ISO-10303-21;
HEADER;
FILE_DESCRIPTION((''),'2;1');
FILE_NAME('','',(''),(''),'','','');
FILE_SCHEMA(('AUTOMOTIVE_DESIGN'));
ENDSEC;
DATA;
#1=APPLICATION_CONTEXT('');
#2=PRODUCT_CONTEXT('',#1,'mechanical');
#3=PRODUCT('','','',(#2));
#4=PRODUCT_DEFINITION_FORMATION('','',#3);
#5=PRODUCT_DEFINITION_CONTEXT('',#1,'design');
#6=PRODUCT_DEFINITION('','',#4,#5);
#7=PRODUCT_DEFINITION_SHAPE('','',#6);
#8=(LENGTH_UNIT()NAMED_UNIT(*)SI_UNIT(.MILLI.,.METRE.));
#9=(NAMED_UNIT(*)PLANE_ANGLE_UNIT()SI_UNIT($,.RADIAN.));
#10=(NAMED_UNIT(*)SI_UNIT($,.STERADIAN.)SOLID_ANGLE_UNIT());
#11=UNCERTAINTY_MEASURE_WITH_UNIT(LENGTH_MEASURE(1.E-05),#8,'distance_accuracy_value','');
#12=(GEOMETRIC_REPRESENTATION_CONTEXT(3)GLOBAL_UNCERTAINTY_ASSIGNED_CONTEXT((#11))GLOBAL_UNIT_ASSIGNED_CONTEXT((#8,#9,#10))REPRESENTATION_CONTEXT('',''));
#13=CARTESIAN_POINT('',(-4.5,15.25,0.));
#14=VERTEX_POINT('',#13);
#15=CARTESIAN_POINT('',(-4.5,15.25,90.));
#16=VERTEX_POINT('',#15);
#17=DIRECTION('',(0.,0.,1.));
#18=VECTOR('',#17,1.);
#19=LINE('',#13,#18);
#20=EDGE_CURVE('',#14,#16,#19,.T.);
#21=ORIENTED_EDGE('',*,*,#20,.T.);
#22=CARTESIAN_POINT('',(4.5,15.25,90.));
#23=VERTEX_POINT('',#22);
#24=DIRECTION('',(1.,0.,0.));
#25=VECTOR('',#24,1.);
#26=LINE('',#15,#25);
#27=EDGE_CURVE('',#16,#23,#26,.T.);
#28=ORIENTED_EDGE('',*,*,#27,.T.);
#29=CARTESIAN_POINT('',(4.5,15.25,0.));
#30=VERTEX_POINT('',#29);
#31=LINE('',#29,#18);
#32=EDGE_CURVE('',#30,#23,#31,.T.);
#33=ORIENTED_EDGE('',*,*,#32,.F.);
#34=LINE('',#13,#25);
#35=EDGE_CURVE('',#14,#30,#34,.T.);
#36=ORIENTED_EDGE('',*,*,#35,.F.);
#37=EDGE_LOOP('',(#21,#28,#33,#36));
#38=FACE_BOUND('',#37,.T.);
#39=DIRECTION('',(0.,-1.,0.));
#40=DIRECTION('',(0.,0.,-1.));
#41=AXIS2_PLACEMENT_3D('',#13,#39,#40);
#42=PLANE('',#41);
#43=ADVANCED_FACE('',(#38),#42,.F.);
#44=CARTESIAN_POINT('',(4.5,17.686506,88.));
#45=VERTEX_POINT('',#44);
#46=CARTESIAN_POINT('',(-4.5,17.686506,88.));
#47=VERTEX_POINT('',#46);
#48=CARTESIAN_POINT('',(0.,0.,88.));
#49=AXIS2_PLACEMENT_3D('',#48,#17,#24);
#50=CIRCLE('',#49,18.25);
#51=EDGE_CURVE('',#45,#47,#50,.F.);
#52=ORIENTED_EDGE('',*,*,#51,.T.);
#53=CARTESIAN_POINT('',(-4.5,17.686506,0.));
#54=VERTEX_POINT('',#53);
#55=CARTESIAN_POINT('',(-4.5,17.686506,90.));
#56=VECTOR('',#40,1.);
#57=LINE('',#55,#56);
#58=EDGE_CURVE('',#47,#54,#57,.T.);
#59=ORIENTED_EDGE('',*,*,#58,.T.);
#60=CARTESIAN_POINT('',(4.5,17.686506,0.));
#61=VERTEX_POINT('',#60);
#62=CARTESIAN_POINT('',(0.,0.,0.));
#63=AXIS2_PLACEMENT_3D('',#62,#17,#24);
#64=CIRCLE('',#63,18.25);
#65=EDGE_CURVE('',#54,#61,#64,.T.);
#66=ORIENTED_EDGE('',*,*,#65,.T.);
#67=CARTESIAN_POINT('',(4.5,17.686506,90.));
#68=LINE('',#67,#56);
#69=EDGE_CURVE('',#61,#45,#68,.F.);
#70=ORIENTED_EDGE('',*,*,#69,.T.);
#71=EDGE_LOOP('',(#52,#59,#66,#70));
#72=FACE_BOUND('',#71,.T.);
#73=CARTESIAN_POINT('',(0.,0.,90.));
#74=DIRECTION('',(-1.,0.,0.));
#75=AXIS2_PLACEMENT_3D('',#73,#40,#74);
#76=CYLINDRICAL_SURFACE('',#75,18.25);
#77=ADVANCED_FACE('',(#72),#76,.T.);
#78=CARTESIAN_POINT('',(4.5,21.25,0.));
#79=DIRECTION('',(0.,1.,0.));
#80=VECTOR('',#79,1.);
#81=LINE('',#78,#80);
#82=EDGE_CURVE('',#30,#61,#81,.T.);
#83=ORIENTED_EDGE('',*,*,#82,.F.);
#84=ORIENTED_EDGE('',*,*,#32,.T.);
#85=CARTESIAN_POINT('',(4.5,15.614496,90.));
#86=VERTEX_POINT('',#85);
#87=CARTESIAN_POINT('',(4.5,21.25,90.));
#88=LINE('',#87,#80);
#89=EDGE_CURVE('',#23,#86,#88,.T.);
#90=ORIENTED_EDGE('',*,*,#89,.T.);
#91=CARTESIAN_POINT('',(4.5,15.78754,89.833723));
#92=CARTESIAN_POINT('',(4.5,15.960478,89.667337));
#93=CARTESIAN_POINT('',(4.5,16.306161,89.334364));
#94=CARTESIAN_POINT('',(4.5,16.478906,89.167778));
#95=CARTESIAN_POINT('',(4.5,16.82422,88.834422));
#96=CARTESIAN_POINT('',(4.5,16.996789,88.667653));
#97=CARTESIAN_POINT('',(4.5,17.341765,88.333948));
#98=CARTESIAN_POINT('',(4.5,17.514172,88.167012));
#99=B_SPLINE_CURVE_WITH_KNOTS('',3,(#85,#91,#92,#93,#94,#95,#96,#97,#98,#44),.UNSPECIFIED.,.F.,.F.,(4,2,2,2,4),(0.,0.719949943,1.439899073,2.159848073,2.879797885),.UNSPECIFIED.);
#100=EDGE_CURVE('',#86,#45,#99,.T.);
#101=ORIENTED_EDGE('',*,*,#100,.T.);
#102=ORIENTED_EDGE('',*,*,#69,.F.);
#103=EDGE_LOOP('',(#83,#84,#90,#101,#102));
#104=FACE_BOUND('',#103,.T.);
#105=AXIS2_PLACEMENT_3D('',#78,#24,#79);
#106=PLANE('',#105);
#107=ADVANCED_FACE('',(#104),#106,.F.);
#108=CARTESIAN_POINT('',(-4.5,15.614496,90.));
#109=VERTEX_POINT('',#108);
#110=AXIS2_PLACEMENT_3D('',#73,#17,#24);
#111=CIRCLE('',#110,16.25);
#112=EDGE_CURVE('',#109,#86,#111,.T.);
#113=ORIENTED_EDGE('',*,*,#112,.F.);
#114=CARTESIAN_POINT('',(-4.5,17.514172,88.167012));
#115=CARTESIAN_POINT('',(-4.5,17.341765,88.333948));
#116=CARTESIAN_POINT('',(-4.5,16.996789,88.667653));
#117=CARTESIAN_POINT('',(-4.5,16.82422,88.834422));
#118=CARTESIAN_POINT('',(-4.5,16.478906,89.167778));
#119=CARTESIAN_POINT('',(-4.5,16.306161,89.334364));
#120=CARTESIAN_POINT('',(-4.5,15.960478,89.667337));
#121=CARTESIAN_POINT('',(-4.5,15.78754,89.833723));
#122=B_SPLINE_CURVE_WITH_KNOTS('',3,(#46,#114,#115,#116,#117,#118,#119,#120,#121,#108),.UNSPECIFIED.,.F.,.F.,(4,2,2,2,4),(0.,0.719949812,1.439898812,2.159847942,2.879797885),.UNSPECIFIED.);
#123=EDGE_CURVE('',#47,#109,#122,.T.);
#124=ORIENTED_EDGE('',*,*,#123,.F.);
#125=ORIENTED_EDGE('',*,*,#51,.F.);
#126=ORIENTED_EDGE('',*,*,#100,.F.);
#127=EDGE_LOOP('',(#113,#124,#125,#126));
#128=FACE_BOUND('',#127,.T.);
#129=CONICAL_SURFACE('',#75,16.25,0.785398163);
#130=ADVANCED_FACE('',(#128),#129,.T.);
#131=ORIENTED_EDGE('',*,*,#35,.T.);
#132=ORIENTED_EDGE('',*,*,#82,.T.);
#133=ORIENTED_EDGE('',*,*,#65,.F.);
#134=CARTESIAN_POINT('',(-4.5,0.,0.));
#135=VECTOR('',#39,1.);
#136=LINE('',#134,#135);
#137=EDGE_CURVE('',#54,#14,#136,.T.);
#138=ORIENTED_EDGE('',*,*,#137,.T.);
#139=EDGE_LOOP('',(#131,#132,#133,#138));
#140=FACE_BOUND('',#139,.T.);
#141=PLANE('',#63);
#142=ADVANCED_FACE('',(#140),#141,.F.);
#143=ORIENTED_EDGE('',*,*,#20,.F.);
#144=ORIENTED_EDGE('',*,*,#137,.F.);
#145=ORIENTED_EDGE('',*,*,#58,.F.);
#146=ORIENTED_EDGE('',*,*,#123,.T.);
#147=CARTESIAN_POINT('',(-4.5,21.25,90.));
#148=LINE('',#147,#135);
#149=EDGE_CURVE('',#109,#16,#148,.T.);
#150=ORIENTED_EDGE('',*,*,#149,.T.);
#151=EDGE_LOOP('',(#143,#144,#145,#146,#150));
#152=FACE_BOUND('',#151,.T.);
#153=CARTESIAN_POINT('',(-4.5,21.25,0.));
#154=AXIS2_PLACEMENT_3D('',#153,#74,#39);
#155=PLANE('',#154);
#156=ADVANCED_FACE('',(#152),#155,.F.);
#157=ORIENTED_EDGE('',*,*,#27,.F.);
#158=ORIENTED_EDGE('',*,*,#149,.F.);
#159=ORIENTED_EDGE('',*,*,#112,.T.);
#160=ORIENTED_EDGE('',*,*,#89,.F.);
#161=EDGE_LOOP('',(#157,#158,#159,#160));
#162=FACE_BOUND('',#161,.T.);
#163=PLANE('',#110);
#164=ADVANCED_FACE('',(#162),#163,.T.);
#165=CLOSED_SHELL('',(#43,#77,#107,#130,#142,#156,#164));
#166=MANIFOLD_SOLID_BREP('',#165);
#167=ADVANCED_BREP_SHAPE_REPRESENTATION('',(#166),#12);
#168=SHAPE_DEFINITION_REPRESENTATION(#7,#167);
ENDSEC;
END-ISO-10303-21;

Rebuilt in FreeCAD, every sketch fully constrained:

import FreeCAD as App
import Part
import Sketcher


def edges_at(feature, points):
    """Names of the edges that pass closest to the given points."""
    edges = feature.Shape.Edges
    near = lambda p: min(range(len(edges)), key=lambda i: edges[i].distToShape(Part.Vertex(*p))[0])
    return sorted({f"Edge{near(p) + 1}" for p in points})


def add_polygon(sketch, points):
    """Adds a closed chain of lines whose ends are joined by coincident constraints."""
    first, n = sketch.GeometryCount, len(points)
    for a, b in zip(points, points[1:] + points[:1]):
        sketch.addGeometry(Part.LineSegment(App.Vector(*a, 0), App.Vector(*b, 0)), False)
    for i in range(n):
        sketch.addConstraint(Sketcher.Constraint("Coincident", first + i, 2, first + (i + 1) % n, 1))

doc = App.newDocument("Part")
body = doc.addObject("PartDesign::Body", "Body")

# Sketch on XY plane
sketch1 = body.newObject("Sketcher::SketchObject", "Sketch")
sketch1.AttachmentSupport = (doc.getObject("XY_Plane"), [""])
sketch1.MapMode = "FlatFace"
sketch1.addGeometry(Part.Circle(App.Vector(0, 0, 0), App.Vector(0, 0, 1), 18), False)
sketch1.addConstraint([
    Sketcher.Constraint("Coincident", 0, 3, -1, 1),
    Sketcher.Constraint("Diameter", 0, 36.5),
])
pad1 = body.newObject("PartDesign::Pad", "Pad")
pad1.Profile = sketch1
pad1.Length = 90

# Sketch on XY plane
sketch2 = body.newObject("Sketcher::SketchObject", "Sketch001")
sketch2.AttachmentSupport = (doc.getObject("XY_Plane"), [""])
sketch2.MapMode = "FlatFace"
sketch2.AttachmentOffset = App.Placement(App.Vector(0, 0, 90), App.Rotation())
add_polygon(sketch2, [(-4, 21), (-4, 15), (4, 15), (4, 21)])  # lines 0-3
sketch2.addConstraint([
    Sketcher.Constraint("Vertical", 0),
    Sketcher.Constraint("Horizontal", 1),
    Sketcher.Constraint("Vertical", 2),
    Sketcher.Constraint("Horizontal", 3),
    Sketcher.Constraint("DistanceX", 1, 1, 1, 2, 9.0),
    Sketcher.Constraint("DistanceY", 0, 2, 0, 1, 6.0),
    Sketcher.Constraint("DistanceX", 0, 2, -1, 1, 4.5),
    Sketcher.Constraint("DistanceY", -1, 1, 0, 2, 15.25),
])
pocket1 = body.newObject("PartDesign::Pocket", "Pocket")
pocket1.Profile = sketch2
pocket1.Type = "ThroughAll"
doc.recompute()

chamfer = body.newObject("PartDesign::Chamfer", "Chamfer")
chamfer.Base = (pocket1, edges_at(pocket1, [(0, -18.25, 90)]))
chamfer.Size = 2

doc.recompute()
